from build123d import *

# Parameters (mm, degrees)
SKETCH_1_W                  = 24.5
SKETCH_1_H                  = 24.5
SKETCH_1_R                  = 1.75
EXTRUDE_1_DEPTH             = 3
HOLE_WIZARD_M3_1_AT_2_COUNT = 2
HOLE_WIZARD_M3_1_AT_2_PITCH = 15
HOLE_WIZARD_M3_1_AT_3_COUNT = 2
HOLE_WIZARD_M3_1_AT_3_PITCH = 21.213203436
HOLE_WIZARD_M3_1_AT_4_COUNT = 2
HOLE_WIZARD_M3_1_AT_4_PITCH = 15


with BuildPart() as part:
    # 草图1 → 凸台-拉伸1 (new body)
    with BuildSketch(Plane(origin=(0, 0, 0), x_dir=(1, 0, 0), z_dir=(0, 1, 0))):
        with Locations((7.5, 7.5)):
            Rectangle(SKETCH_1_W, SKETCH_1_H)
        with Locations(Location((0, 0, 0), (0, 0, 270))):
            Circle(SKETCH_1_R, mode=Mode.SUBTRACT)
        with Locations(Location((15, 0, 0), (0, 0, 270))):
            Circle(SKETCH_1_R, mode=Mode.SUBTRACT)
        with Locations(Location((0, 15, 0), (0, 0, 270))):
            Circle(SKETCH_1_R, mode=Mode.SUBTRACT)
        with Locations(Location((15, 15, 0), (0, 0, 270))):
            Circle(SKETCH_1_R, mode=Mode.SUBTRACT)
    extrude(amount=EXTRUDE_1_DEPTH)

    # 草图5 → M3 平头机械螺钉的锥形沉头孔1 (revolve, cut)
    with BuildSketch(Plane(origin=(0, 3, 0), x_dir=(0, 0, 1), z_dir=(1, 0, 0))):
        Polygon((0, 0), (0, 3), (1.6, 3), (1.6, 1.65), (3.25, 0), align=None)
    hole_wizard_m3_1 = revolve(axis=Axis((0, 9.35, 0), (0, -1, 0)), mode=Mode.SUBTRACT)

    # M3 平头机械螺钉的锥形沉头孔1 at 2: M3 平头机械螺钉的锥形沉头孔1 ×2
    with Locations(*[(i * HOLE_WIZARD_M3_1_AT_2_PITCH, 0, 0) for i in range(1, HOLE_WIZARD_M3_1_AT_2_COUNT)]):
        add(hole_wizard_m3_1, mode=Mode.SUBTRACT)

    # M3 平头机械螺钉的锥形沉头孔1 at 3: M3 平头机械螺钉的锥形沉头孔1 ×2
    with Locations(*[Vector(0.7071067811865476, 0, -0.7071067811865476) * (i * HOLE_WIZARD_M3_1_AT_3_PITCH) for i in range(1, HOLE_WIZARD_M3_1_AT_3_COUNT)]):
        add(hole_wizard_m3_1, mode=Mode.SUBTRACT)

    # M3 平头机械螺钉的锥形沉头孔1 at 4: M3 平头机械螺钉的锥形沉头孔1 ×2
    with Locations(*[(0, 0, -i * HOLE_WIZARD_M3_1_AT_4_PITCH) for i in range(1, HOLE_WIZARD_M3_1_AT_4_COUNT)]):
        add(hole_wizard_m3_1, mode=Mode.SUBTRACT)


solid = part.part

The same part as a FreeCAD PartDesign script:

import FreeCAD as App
import Part
import Sketcher
Q = App.Units.Quantity

doc = App.newDocument("Part")
params = doc.addObject("Spreadsheet::Sheet", "Params")
for row, (alias, value) in enumerate([
    ("sketch1_diameter", "3.5 mm"),
    ("sketch1_width", "24.5 mm"),
    ("pad1_length", "3 mm"),
    ("sketch2_width", "3 mm"),
    ("sketch2_height", "1.6 mm"),
    ("sketch2_width2", "1.35 mm"),
    ("groove_angle", "360 deg"),
    ("linearpattern_pitch", "15 mm"),
    ("linearpattern2_pitch", "21.213203 mm"),
    ("linearpattern3_pitch", "15 mm"),
], start=1):
    params.set(f"A{row}", alias)
    params.set(f"B{row}", "=" + value)
    params.setAlias(f"B{row}", alias)

body = doc.addObject("PartDesign::Body", "Body")

# Sketch on XZ plane
sketch1 = body.newObject("Sketcher::SketchObject", "Sketch")
sketch1.AttachmentSupport = (doc.getObject("XZ_Plane"), [""])
sketch1.MapMode = "FlatFace"
sketch1.addGeometry(Part.LineSegment(App.Vector(-4.8, -19.8, 0), App.Vector(-4.8, 4.8, 0)), False)
sketch1.addGeometry(Part.LineSegment(App.Vector(-4.8, 4.8, 0), App.Vector(19.8, 4.8, 0)), False)
sketch1.addGeometry(Part.LineSegment(App.Vector(19.8, 4.8, 0), App.Vector(19.8, -19.8, 0)), False)
sketch1.addGeometry(Part.LineSegment(App.Vector(19.8, -19.8, 0), App.Vector(-4.8, -19.8, 0)), False)
sketch1.addGeometry(Part.Circle(App.Vector(0, 0, 0), App.Vector(0, 0, 1), 1.8), False)
sketch1.addGeometry(Part.Circle(App.Vector(15, 0, 0), App.Vector(0, 0, 1), 1.8), False)
sketch1.addGeometry(Part.Circle(App.Vector(0, -15, 0), App.Vector(0, 0, 1), 1.8), False)
sketch1.addGeometry(Part.Circle(App.Vector(15, -15, 0), App.Vector(0, 0, 1), 1.8), False)
sketch1.addConstraint(Sketcher.Constraint("Coincident", 0, 2, 1, 1))
sketch1.addConstraint(Sketcher.Constraint("Coincident", 1, 2, 2, 1))
sketch1.addConstraint(Sketcher.Constraint("Coincident", 2, 2, 3, 1))
sketch1.addConstraint(Sketcher.Constraint("Coincident", 3, 2, 0, 1))
sketch1.addConstraint(Sketcher.Constraint("Vertical", 0))
sketch1.addConstraint(Sketcher.Constraint("Horizontal", 1))
sketch1.addConstraint(Sketcher.Constraint("Vertical", 2))
sketch1.addConstraint(Sketcher.Constraint("Horizontal", 3))
sketch1.addConstraint(Sketcher.Constraint("Coincident", 4, 3, -1, 1))
sketch1.addConstraint(Sketcher.Constraint("Equal", 4, 5))
sketch1.addConstraint(Sketcher.Constraint("Equal", 5, 6))
sketch1.addConstraint(Sketcher.Constraint("Equal", 6, 7))
sketch1.addConstraint(Sketcher.Constraint("PointOnObject", 5, 3, -1))
sketch1.addConstraint(Sketcher.Constraint("PointOnObject", 6, 3, -2))
sketch1.addConstraint(Sketcher.Constraint("Horizontal", 6, 3, 7, 3))
sketch1.addConstraint(Sketcher.Constraint("Vertical", 5, 3, 7, 3))
sketch1.addConstraint(Sketcher.Constraint("Equal", 3, 0))
sketch1.addConstraint(Sketcher.Constraint("Diameter", 4, 3.5))
sketch1.addConstraint(Sketcher.Constraint("DistanceX", 1, 1, 1, 2, 24.5))
sketch1.addConstraint(Sketcher.Constraint("DistanceX", -1, 1, 5, 3, 15.0))
sketch1.addConstraint(Sketcher.Constraint("DistanceY", 6, 3, -1, 1, 15.0))
sketch1.addConstraint(Sketcher.Constraint("DistanceX", 0, 2, -1, 1, 4.75))
sketch1.addConstraint(Sketcher.Constraint("DistanceY", -1, 1, 0, 2, 4.75))
sketch1.setExpression("Constraints[17]", "Params.sketch1_diameter")
sketch1.setExpression("Constraints[18]", "Params.sketch1_width")
pad1 = body.newObject("PartDesign::Pad", "Pad")
pad1.Profile = sketch1
pad1.setExpression("Length", "Params.pad1_length")
pad1.Reversed = True

# Sketch on YZ plane
sketch2 = body.newObject("Sketcher::SketchObject", "Sketch001")
sketch2.AttachmentSupport = (doc.getObject("YZ_Plane"), [""])
sketch2.MapMode = "FlatFace"
sketch2.addGeometry(Part.LineSegment(App.Vector(0, 0, 0), App.Vector(3, 0, 0)), False)
sketch2.addGeometry(Part.LineSegment(App.Vector(3, 0, 0), App.Vector(3, 3.2, 0)), False)
sketch2.addGeometry(Part.LineSegment(App.Vector(3, 3.2, 0), App.Vector(1.4, 1.6, 0)), False)
sketch2.addGeometry(Part.LineSegment(App.Vector(1.4, 1.6, 0), App.Vector(0, 1.6, 0)), False)
sketch2.addGeometry(Part.LineSegment(App.Vector(0, 1.6, 0), App.Vector(0, 0, 0)), False)
sketch2.addConstraint(Sketcher.Constraint("Coincident", 0, 2, 1, 1))
sketch2.addConstraint(Sketcher.Constraint("Coincident", 1, 2, 2, 1))
sketch2.addConstraint(Sketcher.Constraint("Coincident", 2, 2, 3, 1))
sketch2.addConstraint(Sketcher.Constraint("Coincident", 3, 2, 4, 1))
sketch2.addConstraint(Sketcher.Constraint("Coincident", 4, 2, 0, 1))
sketch2.addConstraint(Sketcher.Constraint("Horizontal", 0))
sketch2.addConstraint(Sketcher.Constraint("Vertical", 1))
sketch2.addConstraint(Sketcher.Constraint("Horizontal", 3))
sketch2.addConstraint(Sketcher.Constraint("Vertical", 4))
sketch2.addConstraint(Sketcher.Constraint("Coincident", 4, 2, -1, 1))
sketch2.addConstraint(Sketcher.Constraint("DistanceX", 0, 1, 0, 2, 3.0))
sketch2.addConstraint(Sketcher.Constraint("Angle", 2, Q("-135 deg")))
sketch2.addConstraint(Sketcher.Constraint("DistanceY", 4, 2, 4, 1, 1.6))
sketch2.addConstraint(Sketcher.Constraint("DistanceX", 3, 2, 3, 1, 1.35))
sketch2.setExpression("Constraints[10]", "Params.sketch2_width")
sketch2.setExpression("Constraints[12]", "Params.sketch2_height")
sketch2.setExpression("Constraints[13]", "Params.sketch2_width2")
groove = body.newObject("PartDesign::Groove", "Groove")
groove.Profile = sketch2
groove.ReferenceAxis = (sketch2, ["H_Axis"])
groove.setExpression("Angle", "Params.groove_angle")
doc.recompute()

linearpattern = body.newObject("PartDesign::LinearPattern", "LinearPattern")
linearpattern.Originals = [groove]
linearpattern.Direction = (doc.getObject("X_Axis"), [""])
linearpattern.Mode = "offset"
linearpattern.setExpression("Offset", "Params.linearpattern_pitch")
linearpattern.Occurrences = 2
body.Tip = linearpattern
doc.recompute()

datumline = body.newObject("PartDesign::Line", "DatumLine")
datumline.Placement = App.Placement(App.Vector(0, 0, 0), App.Rotation(App.Vector(0, 0, 1), App.Vector(0.707106781, 0, -0.707106781)))
linearpattern2 = body.newObject("PartDesign::LinearPattern", "LinearPattern001")
linearpattern2.Originals = [groove]
linearpattern2.Direction = (datumline, [""])
linearpattern2.Mode = "offset"
linearpattern2.setExpression("Offset", "Params.linearpattern2_pitch")
linearpattern2.Occurrences = 2
body.Tip = linearpattern2
doc.recompute()

linearpattern3 = body.newObject("PartDesign::LinearPattern", "LinearPattern002")
linearpattern3.Originals = [groove]
linearpattern3.Direction = (doc.getObject("Z_Axis"), [""])
linearpattern3.Mode = "offset"
linearpattern3.setExpression("Offset", "Params.linearpattern3_pitch")
linearpattern3.Occurrences = 2
linearpattern3.Reversed = True
body.Tip = linearpattern3

doc.recompute()
